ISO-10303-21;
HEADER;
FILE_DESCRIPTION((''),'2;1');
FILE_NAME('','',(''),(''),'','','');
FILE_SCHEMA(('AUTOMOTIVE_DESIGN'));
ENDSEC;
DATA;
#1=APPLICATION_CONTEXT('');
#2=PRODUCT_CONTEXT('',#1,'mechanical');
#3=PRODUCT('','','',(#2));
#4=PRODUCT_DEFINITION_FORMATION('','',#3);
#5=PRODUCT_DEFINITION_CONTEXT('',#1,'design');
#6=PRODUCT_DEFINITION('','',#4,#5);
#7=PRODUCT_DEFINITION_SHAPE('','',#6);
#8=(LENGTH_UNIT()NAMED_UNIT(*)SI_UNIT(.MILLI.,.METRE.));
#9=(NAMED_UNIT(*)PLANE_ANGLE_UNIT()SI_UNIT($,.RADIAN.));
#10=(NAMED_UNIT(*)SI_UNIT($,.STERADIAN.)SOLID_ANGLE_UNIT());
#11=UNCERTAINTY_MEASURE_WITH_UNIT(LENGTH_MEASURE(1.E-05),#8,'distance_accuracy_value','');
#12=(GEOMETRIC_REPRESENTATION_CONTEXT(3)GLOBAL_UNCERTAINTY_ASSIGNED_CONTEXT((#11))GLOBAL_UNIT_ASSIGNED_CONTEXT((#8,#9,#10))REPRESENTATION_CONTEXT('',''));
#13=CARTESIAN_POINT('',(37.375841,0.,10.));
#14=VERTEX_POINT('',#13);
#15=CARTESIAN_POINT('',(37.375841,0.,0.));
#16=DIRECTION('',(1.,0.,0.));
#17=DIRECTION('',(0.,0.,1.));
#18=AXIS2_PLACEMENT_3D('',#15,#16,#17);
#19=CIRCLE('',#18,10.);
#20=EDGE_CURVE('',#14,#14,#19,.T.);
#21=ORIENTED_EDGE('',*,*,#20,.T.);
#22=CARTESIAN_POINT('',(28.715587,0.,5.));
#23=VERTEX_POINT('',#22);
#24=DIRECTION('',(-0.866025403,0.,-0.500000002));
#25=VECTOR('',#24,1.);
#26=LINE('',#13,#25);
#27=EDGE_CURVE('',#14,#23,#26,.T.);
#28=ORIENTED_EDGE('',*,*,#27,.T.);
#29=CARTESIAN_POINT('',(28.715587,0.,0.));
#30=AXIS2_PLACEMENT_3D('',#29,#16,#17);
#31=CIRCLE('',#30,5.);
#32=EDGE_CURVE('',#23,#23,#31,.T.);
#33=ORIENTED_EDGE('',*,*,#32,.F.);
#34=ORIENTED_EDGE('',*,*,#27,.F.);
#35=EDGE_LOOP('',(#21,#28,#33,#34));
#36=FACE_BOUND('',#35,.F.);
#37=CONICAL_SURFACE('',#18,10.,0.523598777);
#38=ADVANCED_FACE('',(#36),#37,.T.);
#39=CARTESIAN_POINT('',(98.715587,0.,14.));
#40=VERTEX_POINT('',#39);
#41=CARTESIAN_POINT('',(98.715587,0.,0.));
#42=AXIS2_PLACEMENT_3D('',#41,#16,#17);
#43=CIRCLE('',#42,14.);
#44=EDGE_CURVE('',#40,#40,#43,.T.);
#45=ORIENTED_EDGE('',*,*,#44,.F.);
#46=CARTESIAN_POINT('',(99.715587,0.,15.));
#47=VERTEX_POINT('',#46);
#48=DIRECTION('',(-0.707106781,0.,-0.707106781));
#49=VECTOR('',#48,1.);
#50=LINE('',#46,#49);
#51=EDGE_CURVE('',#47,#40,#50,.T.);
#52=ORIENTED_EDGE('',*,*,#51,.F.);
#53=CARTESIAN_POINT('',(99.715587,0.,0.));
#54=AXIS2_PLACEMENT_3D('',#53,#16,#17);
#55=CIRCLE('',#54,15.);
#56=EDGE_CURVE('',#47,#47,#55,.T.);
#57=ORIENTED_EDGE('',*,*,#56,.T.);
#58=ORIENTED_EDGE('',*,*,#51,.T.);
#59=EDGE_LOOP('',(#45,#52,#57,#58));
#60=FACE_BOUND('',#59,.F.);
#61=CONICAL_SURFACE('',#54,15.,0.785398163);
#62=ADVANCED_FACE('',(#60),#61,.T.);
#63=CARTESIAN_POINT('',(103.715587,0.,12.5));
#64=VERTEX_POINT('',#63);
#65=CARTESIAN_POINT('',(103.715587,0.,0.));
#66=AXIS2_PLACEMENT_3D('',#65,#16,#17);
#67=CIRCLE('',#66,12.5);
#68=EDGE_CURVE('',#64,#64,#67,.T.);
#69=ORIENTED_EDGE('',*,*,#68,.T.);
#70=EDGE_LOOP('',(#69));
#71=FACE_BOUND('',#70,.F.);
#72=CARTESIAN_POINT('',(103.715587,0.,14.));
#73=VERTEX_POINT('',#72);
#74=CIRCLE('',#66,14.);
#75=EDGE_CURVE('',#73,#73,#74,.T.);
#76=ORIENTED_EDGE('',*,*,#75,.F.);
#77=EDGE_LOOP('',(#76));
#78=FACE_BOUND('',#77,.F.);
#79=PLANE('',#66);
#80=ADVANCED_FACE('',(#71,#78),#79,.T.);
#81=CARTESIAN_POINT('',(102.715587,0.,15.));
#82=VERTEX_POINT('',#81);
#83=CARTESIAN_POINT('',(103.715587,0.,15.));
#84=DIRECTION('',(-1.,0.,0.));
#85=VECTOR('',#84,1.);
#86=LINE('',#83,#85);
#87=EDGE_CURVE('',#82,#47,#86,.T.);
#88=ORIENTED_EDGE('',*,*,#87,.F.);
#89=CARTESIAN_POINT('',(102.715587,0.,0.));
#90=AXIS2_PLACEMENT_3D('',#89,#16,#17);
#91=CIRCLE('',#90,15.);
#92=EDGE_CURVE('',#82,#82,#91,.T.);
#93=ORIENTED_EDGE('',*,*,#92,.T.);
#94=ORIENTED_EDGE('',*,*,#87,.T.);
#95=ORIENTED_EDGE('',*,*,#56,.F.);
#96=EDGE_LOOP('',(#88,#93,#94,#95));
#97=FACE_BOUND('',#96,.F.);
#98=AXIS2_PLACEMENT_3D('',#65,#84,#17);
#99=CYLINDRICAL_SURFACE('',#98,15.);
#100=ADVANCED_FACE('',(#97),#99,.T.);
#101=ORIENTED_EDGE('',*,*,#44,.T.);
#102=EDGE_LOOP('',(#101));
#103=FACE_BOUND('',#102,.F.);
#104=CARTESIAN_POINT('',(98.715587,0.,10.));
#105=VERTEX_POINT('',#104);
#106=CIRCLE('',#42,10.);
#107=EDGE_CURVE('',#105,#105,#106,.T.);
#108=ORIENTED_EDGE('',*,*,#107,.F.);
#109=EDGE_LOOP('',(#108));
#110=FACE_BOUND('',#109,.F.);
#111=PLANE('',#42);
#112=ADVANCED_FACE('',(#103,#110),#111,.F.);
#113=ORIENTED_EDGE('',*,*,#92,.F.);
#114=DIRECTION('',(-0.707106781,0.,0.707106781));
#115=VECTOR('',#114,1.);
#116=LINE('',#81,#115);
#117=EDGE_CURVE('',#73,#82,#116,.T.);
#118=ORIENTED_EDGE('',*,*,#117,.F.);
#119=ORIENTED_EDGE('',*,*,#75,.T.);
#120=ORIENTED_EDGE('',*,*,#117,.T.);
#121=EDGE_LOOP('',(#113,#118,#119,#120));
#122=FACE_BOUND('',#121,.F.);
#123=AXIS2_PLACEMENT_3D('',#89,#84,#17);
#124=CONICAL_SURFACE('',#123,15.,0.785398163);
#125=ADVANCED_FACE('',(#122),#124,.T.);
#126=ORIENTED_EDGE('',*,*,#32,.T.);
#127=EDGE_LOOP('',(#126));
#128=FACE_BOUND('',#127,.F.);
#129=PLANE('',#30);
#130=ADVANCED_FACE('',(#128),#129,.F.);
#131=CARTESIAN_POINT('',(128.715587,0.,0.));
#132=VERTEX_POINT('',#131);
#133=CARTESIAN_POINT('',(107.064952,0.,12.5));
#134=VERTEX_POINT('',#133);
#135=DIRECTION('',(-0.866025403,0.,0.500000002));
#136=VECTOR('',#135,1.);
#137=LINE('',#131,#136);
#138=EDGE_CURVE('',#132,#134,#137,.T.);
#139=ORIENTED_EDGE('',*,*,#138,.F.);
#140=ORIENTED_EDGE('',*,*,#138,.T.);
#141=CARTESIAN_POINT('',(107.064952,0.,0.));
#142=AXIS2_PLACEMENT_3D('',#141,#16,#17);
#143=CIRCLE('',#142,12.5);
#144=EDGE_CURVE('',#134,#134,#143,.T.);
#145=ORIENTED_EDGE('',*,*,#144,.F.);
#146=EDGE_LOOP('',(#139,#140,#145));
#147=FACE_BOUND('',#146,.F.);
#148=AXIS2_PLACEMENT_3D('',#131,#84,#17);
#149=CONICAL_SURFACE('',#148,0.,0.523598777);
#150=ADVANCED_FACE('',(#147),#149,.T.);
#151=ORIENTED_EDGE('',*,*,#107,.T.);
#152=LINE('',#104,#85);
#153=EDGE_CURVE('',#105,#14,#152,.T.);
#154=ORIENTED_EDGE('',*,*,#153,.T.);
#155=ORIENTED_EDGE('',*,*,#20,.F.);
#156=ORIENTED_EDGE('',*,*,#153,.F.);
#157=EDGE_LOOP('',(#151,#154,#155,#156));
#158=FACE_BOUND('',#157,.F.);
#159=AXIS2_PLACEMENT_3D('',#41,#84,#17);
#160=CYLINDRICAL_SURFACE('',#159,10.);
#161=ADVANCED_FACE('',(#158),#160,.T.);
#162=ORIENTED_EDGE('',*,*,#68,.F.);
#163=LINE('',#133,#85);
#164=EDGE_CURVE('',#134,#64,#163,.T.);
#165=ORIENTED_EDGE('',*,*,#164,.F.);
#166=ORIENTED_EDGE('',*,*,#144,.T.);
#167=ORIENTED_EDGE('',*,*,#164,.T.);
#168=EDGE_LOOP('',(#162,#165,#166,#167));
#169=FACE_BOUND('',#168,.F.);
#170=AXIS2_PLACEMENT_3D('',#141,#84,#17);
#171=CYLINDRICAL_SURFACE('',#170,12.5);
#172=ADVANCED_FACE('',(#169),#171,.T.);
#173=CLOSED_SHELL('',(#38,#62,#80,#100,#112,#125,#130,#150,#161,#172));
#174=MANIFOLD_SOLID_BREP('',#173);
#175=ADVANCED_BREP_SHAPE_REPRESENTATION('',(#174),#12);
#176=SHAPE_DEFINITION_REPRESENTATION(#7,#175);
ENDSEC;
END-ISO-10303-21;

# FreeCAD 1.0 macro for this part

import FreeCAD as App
import Part
import Sketcher
from FreeCAD import Vector
Q = App.Units.Quantity


def edges_at(feature, points):
    """Names of the edges that pass closest to the given points."""
    edges = feature.Shape.Edges
    near = lambda p: min(range(len(edges)), key=lambda i: edges[i].distToShape(Part.Vertex(*p))[0])
    return sorted({f"Edge{near(p) + 1}" for p in points})

doc = App.newDocument("Part")
body = doc.addObject("PartDesign::Body", "Body")

# Sketch on XZ plane
sketch1 = doc.addObject("Sketcher::SketchObject", "Sketch")
body.addObject(sketch1)
sketch1.AttachmentSupport = (doc.XZ_Plane, [""])
sketch1.MapMode = "FlatFace"
sketch1.addGeometry(Part.LineSegment(Vector(37.4, 10, 0), Vector(28.7, 5, 0)), False)
sketch1.addGeometry(Part.LineSegment(Vector(28.7, 5, 0), Vector(28.7, 0, 0)), False)
sketch1.addGeometry(Part.LineSegment(Vector(28.7, 0, 0), Vector(128.7, 0, 0)), False)
sketch1.addGeometry(Part.LineSegment(Vector(128.7, 0, 0), Vector(107.1, 12.5, 0)), False)
sketch1.addGeometry(Part.LineSegment(Vector(107.1, 12.5, 0), Vector(103.7, 12.5, 0)), False)
sketch1.addGeometry(Part.LineSegment(Vector(103.7, 12.5, 0), Vector(103.7, 15, 0)), False)
sketch1.addGeometry(Part.LineSegment(Vector(103.7, 15, 0), Vector(98.7, 15, 0)), False)
sketch1.addGeometry(Part.LineSegment(Vector(98.7, 15, 0), Vector(98.7, 10, 0)), False)
sketch1.addGeometry(Part.LineSegment(Vector(98.7, 10, 0), Vector(37.4, 10, 0)), False)
sketch1.addConstraint(Sketcher.Constraint("Coincident", 0, 2, 1, 1))
sketch1.addConstraint(Sketcher.Constraint("Coincident", 1, 2, 2, 1))
sketch1.addConstraint(Sketcher.Constraint("Coincident", 2, 2, 3, 1))
sketch1.addConstraint(Sketcher.Constraint("Coincident", 3, 2, 4, 1))
sketch1.addConstraint(Sketcher.Constraint("Coincident", 4, 2, 5, 1))
sketch1.addConstraint(Sketcher.Constraint("Coincident", 5, 2, 6, 1))
sketch1.addConstraint(Sketcher.Constraint("Coincident", 6, 2, 7, 1))
sketch1.addConstraint(Sketcher.Constraint("Coincident", 7, 2, 8, 1))
sketch1.addConstraint(Sketcher.Constraint("Coincident", 8, 2, 0, 1))
sketch1.addConstraint(Sketcher.Constraint("Vertical", 1))
sketch1.addConstraint(Sketcher.Constraint("Horizontal", 2))
sketch1.addConstraint(Sketcher.Constraint("Horizontal", 4))
sketch1.addConstraint(Sketcher.Constraint("Vertical", 5))
sketch1.addConstraint(Sketcher.Constraint("Horizontal", 6))
sketch1.addConstraint(Sketcher.Constraint("Vertical", 7))
sketch1.addConstraint(Sketcher.Constraint("Horizontal", 8))
sketch1.addConstraint(Sketcher.Constraint("PointOnObject", 1, 2, -1))
sketch1.addConstraint(Sketcher.Constraint("Equal", 6, 1))
sketch1.addConstraint(Sketcher.Constraint("Equal", 1, 7))
sketch1.addConstraint(Sketcher.Constraint("DistanceX", 2, 1, 2, 2, 100.0))
sketch1.addConstraint(Sketcher.Constraint("DistanceX", 6, 2, 6, 1, 5.0))
sketch1.addConstraint(Sketcher.Constraint("Angle", 0, Q("-150 deg")))
sketch1.addConstraint(Sketcher.Constraint("Angle", 3, Q("150 deg")))
sketch1.addConstraint(Sketcher.Constraint("Distance", 0, 10.0))
sketch1.addConstraint(Sketcher.Constraint("Distance", 3, 25.0))
sketch1.addConstraint(Sketcher.Constraint("DistanceX", 4, 2, 2, 2, 25.0))
sketch1.addConstraint(Sketcher.Constraint("DistanceX", -1, 1, 8, 2, 37.375841))
revolution = doc.addObject("PartDesign::Revolution", "Revolution")
body.addObject(revolution)
revolution.Profile = sketch1
revolution.ReferenceAxis = (sketch1, ["H_Axis"])
revolution.Angle = 360
doc.recompute()

chamfer = doc.addObject("PartDesign::Chamfer", "Chamfer")
body.addObject(chamfer)
chamfer.Base = (revolution, edges_at(revolution, [(103.716, 0, -15), (98.716, 0, -15)]))
chamfer.Size = 1

doc.recompute()
